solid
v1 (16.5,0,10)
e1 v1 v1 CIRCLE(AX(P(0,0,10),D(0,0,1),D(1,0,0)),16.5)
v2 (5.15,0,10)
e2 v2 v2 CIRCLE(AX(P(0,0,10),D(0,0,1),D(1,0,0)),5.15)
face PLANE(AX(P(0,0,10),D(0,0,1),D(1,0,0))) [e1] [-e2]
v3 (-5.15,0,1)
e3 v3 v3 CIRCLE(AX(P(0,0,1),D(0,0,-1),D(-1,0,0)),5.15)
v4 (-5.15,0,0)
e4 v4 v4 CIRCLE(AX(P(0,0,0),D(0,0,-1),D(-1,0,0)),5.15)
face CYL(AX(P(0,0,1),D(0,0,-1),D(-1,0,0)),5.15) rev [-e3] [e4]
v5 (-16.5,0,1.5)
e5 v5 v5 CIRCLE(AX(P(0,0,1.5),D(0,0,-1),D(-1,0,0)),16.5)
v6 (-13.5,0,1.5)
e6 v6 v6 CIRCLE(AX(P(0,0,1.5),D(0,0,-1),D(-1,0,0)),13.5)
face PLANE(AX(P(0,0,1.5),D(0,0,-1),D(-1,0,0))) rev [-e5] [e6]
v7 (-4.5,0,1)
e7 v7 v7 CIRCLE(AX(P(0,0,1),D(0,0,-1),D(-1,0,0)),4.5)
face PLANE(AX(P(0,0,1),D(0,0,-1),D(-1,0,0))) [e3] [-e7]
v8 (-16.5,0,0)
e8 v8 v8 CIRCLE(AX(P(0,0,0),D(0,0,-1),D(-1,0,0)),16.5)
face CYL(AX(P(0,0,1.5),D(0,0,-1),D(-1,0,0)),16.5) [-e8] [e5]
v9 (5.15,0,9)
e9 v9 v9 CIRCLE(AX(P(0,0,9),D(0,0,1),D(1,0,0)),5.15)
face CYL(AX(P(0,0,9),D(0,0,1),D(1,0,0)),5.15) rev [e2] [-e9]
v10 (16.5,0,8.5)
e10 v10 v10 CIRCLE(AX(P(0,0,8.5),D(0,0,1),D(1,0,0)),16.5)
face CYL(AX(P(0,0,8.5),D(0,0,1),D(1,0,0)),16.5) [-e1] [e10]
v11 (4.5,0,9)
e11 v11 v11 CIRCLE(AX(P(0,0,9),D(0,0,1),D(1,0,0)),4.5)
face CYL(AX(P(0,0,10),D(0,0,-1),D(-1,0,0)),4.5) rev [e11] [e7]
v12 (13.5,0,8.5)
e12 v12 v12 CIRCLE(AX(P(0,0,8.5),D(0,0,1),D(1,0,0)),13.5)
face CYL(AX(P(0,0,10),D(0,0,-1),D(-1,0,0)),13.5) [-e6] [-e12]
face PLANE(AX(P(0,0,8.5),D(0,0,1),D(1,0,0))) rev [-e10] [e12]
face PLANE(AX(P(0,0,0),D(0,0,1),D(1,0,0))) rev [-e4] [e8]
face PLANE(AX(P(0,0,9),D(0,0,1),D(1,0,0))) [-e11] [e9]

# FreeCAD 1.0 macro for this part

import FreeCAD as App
import Part
import Sketcher
from FreeCAD import Vector
Q = App.Units.Quantity

doc = App.newDocument("Part")
body = doc.addObject("PartDesign::Body", "Body")

sketch1 = body.newObject("Sketcher::SketchObject", "Sketch")
sketch1.AttachmentSupport = (doc.getObject("XY_Plane"), [""])
sketch1.MapMode = "FlatFace"
sketch1.addGeometry(Part.Circle(Vector(0, 0, 0), Vector(0, 0, 1), 13.5), False)
sketch1.addGeometry(Part.Circle(Vector(0, 0, 0), Vector(0, 0, 1), 4.5), False)
sketch1.addConstraint(Sketcher.Constraint("Coincident", 0, 3, -1, 1))
sketch1.addConstraint(Sketcher.Constraint("Coincident", 1, 3, -1, 1))
sketch1.addConstraint(Sketcher.Constraint("Diameter", 0, Q("27 mm")))
sketch1.addConstraint(Sketcher.Constraint("Diameter", 1, Q("9 mm")))
pad1 = body.newObject("PartDesign::Pad", "Pad")
pad1.Profile = sketch1
pad1.Length = 10

sketch2 = body.newObject("Sketcher::SketchObject", "Sketch001")
sketch2.AttachmentSupport = (doc.getObject("XY_Plane"), [""])
sketch2.MapMode = "FlatFace"
sketch2.AttachmentOffset = App.Placement(Vector(0, 0, 10), App.Rotation())
sketch2.addGeometry(Part.Circle(Vector(0, 0, 0), Vector(0, 0, 1), 5), False)
sketch2.addConstraint(Sketcher.Constraint("Coincident", 0, 3, -1, 1))
sketch2.addConstraint(Sketcher.Constraint("Diameter", 0, Q("10.3 mm")))
pocket1 = body.newObject("PartDesign::Pocket", "Pocket")
pocket1.Profile = sketch2
pocket1.Length = 1

sketch3 = body.newObject("Sketcher::SketchObject", "Sketch002")
sketch3.AttachmentSupport = (doc.getObject("XY_Plane"), [""])
sketch3.MapMode = "FlatFace"
sketch3.AttachmentOffset = App.Placement(Vector(0, 0, 1), App.Rotation())
sketch3.addGeometry(Part.Circle(Vector(0, 0, 0), Vector(0, 0, 1), 5), False)
sketch3.addConstraint(Sketcher.Constraint("Coincident", 0, 3, -1, 1))
sketch3.addConstraint(Sketcher.Constraint("Diameter", 0, Q("10.3 mm")))
pocket2 = body.newObject("PartDesign::Pocket", "Pocket001")
pocket2.Profile = sketch3
pocket2.Length = 1

sketch4 = body.newObject("Sketcher::SketchObject", "Sketch003")
sketch4.AttachmentSupport = (doc.getObject("XY_Plane"), [""])
sketch4.MapMode = "FlatFace"
sketch4.AttachmentOffset = App.Placement(Vector(0, 0, 1.5), App.Rotation())
sketch4.addGeometry(Part.Circle(Vector(0, 0, 0), Vector(0, 0, 1), 16), False)
sketch4.addGeometry(Part.Circle(Vector(0, 0, 0), Vector(0, 0, 1), 5), False)
sketch4.addConstraint(Sketcher.Constraint("Coincident", 0, 3, -1, 1))
sketch4.addConstraint(Sketcher.Constraint("Coincident", 1, 3, -1, 1))
sketch4.addConstraint(Sketcher.Constraint("Diameter", 0, Q("33 mm")))
sketch4.addConstraint(Sketcher.Constraint("Diameter", 1, Q("10.3 mm")))
pad2 = body.newObject("PartDesign::Pad", "Pad001")
pad2.Profile = sketch4
pad2.Length = 1.5
pad2.Reversed = True

sketch5 = body.newObject("Sketcher::SketchObject", "Sketch004")
sketch5.AttachmentSupport = (doc.getObject("XY_Plane"), [""])
sketch5.MapMode = "FlatFace"
sketch5.AttachmentOffset = App.Placement(Vector(0, 0, 10), App.Rotation())
sketch5.addGeometry(Part.Circle(Vector(0, 0, 0), Vector(0, 0, 1), 16), False)
sketch5.addGeometry(Part.Circle(Vector(0, 0, 0), Vector(0, 0, 1), 5), False)
sketch5.addConstraint(Sketcher.Constraint("Coincident", 0, 3, -1, 1))
sketch5.addConstraint(Sketcher.Constraint("Coincident", 1, 3, -1, 1))
sketch5.addConstraint(Sketcher.Constraint("Diameter", 0, Q("33 mm")))
sketch5.addConstraint(Sketcher.Constraint("Diameter", 1, Q("10.3 mm")))
pad3 = body.newObject("PartDesign::Pad", "Pad002")
pad3.Profile = sketch5
pad3.Length = 1.5
pad3.Reversed = True

doc.recompute()
